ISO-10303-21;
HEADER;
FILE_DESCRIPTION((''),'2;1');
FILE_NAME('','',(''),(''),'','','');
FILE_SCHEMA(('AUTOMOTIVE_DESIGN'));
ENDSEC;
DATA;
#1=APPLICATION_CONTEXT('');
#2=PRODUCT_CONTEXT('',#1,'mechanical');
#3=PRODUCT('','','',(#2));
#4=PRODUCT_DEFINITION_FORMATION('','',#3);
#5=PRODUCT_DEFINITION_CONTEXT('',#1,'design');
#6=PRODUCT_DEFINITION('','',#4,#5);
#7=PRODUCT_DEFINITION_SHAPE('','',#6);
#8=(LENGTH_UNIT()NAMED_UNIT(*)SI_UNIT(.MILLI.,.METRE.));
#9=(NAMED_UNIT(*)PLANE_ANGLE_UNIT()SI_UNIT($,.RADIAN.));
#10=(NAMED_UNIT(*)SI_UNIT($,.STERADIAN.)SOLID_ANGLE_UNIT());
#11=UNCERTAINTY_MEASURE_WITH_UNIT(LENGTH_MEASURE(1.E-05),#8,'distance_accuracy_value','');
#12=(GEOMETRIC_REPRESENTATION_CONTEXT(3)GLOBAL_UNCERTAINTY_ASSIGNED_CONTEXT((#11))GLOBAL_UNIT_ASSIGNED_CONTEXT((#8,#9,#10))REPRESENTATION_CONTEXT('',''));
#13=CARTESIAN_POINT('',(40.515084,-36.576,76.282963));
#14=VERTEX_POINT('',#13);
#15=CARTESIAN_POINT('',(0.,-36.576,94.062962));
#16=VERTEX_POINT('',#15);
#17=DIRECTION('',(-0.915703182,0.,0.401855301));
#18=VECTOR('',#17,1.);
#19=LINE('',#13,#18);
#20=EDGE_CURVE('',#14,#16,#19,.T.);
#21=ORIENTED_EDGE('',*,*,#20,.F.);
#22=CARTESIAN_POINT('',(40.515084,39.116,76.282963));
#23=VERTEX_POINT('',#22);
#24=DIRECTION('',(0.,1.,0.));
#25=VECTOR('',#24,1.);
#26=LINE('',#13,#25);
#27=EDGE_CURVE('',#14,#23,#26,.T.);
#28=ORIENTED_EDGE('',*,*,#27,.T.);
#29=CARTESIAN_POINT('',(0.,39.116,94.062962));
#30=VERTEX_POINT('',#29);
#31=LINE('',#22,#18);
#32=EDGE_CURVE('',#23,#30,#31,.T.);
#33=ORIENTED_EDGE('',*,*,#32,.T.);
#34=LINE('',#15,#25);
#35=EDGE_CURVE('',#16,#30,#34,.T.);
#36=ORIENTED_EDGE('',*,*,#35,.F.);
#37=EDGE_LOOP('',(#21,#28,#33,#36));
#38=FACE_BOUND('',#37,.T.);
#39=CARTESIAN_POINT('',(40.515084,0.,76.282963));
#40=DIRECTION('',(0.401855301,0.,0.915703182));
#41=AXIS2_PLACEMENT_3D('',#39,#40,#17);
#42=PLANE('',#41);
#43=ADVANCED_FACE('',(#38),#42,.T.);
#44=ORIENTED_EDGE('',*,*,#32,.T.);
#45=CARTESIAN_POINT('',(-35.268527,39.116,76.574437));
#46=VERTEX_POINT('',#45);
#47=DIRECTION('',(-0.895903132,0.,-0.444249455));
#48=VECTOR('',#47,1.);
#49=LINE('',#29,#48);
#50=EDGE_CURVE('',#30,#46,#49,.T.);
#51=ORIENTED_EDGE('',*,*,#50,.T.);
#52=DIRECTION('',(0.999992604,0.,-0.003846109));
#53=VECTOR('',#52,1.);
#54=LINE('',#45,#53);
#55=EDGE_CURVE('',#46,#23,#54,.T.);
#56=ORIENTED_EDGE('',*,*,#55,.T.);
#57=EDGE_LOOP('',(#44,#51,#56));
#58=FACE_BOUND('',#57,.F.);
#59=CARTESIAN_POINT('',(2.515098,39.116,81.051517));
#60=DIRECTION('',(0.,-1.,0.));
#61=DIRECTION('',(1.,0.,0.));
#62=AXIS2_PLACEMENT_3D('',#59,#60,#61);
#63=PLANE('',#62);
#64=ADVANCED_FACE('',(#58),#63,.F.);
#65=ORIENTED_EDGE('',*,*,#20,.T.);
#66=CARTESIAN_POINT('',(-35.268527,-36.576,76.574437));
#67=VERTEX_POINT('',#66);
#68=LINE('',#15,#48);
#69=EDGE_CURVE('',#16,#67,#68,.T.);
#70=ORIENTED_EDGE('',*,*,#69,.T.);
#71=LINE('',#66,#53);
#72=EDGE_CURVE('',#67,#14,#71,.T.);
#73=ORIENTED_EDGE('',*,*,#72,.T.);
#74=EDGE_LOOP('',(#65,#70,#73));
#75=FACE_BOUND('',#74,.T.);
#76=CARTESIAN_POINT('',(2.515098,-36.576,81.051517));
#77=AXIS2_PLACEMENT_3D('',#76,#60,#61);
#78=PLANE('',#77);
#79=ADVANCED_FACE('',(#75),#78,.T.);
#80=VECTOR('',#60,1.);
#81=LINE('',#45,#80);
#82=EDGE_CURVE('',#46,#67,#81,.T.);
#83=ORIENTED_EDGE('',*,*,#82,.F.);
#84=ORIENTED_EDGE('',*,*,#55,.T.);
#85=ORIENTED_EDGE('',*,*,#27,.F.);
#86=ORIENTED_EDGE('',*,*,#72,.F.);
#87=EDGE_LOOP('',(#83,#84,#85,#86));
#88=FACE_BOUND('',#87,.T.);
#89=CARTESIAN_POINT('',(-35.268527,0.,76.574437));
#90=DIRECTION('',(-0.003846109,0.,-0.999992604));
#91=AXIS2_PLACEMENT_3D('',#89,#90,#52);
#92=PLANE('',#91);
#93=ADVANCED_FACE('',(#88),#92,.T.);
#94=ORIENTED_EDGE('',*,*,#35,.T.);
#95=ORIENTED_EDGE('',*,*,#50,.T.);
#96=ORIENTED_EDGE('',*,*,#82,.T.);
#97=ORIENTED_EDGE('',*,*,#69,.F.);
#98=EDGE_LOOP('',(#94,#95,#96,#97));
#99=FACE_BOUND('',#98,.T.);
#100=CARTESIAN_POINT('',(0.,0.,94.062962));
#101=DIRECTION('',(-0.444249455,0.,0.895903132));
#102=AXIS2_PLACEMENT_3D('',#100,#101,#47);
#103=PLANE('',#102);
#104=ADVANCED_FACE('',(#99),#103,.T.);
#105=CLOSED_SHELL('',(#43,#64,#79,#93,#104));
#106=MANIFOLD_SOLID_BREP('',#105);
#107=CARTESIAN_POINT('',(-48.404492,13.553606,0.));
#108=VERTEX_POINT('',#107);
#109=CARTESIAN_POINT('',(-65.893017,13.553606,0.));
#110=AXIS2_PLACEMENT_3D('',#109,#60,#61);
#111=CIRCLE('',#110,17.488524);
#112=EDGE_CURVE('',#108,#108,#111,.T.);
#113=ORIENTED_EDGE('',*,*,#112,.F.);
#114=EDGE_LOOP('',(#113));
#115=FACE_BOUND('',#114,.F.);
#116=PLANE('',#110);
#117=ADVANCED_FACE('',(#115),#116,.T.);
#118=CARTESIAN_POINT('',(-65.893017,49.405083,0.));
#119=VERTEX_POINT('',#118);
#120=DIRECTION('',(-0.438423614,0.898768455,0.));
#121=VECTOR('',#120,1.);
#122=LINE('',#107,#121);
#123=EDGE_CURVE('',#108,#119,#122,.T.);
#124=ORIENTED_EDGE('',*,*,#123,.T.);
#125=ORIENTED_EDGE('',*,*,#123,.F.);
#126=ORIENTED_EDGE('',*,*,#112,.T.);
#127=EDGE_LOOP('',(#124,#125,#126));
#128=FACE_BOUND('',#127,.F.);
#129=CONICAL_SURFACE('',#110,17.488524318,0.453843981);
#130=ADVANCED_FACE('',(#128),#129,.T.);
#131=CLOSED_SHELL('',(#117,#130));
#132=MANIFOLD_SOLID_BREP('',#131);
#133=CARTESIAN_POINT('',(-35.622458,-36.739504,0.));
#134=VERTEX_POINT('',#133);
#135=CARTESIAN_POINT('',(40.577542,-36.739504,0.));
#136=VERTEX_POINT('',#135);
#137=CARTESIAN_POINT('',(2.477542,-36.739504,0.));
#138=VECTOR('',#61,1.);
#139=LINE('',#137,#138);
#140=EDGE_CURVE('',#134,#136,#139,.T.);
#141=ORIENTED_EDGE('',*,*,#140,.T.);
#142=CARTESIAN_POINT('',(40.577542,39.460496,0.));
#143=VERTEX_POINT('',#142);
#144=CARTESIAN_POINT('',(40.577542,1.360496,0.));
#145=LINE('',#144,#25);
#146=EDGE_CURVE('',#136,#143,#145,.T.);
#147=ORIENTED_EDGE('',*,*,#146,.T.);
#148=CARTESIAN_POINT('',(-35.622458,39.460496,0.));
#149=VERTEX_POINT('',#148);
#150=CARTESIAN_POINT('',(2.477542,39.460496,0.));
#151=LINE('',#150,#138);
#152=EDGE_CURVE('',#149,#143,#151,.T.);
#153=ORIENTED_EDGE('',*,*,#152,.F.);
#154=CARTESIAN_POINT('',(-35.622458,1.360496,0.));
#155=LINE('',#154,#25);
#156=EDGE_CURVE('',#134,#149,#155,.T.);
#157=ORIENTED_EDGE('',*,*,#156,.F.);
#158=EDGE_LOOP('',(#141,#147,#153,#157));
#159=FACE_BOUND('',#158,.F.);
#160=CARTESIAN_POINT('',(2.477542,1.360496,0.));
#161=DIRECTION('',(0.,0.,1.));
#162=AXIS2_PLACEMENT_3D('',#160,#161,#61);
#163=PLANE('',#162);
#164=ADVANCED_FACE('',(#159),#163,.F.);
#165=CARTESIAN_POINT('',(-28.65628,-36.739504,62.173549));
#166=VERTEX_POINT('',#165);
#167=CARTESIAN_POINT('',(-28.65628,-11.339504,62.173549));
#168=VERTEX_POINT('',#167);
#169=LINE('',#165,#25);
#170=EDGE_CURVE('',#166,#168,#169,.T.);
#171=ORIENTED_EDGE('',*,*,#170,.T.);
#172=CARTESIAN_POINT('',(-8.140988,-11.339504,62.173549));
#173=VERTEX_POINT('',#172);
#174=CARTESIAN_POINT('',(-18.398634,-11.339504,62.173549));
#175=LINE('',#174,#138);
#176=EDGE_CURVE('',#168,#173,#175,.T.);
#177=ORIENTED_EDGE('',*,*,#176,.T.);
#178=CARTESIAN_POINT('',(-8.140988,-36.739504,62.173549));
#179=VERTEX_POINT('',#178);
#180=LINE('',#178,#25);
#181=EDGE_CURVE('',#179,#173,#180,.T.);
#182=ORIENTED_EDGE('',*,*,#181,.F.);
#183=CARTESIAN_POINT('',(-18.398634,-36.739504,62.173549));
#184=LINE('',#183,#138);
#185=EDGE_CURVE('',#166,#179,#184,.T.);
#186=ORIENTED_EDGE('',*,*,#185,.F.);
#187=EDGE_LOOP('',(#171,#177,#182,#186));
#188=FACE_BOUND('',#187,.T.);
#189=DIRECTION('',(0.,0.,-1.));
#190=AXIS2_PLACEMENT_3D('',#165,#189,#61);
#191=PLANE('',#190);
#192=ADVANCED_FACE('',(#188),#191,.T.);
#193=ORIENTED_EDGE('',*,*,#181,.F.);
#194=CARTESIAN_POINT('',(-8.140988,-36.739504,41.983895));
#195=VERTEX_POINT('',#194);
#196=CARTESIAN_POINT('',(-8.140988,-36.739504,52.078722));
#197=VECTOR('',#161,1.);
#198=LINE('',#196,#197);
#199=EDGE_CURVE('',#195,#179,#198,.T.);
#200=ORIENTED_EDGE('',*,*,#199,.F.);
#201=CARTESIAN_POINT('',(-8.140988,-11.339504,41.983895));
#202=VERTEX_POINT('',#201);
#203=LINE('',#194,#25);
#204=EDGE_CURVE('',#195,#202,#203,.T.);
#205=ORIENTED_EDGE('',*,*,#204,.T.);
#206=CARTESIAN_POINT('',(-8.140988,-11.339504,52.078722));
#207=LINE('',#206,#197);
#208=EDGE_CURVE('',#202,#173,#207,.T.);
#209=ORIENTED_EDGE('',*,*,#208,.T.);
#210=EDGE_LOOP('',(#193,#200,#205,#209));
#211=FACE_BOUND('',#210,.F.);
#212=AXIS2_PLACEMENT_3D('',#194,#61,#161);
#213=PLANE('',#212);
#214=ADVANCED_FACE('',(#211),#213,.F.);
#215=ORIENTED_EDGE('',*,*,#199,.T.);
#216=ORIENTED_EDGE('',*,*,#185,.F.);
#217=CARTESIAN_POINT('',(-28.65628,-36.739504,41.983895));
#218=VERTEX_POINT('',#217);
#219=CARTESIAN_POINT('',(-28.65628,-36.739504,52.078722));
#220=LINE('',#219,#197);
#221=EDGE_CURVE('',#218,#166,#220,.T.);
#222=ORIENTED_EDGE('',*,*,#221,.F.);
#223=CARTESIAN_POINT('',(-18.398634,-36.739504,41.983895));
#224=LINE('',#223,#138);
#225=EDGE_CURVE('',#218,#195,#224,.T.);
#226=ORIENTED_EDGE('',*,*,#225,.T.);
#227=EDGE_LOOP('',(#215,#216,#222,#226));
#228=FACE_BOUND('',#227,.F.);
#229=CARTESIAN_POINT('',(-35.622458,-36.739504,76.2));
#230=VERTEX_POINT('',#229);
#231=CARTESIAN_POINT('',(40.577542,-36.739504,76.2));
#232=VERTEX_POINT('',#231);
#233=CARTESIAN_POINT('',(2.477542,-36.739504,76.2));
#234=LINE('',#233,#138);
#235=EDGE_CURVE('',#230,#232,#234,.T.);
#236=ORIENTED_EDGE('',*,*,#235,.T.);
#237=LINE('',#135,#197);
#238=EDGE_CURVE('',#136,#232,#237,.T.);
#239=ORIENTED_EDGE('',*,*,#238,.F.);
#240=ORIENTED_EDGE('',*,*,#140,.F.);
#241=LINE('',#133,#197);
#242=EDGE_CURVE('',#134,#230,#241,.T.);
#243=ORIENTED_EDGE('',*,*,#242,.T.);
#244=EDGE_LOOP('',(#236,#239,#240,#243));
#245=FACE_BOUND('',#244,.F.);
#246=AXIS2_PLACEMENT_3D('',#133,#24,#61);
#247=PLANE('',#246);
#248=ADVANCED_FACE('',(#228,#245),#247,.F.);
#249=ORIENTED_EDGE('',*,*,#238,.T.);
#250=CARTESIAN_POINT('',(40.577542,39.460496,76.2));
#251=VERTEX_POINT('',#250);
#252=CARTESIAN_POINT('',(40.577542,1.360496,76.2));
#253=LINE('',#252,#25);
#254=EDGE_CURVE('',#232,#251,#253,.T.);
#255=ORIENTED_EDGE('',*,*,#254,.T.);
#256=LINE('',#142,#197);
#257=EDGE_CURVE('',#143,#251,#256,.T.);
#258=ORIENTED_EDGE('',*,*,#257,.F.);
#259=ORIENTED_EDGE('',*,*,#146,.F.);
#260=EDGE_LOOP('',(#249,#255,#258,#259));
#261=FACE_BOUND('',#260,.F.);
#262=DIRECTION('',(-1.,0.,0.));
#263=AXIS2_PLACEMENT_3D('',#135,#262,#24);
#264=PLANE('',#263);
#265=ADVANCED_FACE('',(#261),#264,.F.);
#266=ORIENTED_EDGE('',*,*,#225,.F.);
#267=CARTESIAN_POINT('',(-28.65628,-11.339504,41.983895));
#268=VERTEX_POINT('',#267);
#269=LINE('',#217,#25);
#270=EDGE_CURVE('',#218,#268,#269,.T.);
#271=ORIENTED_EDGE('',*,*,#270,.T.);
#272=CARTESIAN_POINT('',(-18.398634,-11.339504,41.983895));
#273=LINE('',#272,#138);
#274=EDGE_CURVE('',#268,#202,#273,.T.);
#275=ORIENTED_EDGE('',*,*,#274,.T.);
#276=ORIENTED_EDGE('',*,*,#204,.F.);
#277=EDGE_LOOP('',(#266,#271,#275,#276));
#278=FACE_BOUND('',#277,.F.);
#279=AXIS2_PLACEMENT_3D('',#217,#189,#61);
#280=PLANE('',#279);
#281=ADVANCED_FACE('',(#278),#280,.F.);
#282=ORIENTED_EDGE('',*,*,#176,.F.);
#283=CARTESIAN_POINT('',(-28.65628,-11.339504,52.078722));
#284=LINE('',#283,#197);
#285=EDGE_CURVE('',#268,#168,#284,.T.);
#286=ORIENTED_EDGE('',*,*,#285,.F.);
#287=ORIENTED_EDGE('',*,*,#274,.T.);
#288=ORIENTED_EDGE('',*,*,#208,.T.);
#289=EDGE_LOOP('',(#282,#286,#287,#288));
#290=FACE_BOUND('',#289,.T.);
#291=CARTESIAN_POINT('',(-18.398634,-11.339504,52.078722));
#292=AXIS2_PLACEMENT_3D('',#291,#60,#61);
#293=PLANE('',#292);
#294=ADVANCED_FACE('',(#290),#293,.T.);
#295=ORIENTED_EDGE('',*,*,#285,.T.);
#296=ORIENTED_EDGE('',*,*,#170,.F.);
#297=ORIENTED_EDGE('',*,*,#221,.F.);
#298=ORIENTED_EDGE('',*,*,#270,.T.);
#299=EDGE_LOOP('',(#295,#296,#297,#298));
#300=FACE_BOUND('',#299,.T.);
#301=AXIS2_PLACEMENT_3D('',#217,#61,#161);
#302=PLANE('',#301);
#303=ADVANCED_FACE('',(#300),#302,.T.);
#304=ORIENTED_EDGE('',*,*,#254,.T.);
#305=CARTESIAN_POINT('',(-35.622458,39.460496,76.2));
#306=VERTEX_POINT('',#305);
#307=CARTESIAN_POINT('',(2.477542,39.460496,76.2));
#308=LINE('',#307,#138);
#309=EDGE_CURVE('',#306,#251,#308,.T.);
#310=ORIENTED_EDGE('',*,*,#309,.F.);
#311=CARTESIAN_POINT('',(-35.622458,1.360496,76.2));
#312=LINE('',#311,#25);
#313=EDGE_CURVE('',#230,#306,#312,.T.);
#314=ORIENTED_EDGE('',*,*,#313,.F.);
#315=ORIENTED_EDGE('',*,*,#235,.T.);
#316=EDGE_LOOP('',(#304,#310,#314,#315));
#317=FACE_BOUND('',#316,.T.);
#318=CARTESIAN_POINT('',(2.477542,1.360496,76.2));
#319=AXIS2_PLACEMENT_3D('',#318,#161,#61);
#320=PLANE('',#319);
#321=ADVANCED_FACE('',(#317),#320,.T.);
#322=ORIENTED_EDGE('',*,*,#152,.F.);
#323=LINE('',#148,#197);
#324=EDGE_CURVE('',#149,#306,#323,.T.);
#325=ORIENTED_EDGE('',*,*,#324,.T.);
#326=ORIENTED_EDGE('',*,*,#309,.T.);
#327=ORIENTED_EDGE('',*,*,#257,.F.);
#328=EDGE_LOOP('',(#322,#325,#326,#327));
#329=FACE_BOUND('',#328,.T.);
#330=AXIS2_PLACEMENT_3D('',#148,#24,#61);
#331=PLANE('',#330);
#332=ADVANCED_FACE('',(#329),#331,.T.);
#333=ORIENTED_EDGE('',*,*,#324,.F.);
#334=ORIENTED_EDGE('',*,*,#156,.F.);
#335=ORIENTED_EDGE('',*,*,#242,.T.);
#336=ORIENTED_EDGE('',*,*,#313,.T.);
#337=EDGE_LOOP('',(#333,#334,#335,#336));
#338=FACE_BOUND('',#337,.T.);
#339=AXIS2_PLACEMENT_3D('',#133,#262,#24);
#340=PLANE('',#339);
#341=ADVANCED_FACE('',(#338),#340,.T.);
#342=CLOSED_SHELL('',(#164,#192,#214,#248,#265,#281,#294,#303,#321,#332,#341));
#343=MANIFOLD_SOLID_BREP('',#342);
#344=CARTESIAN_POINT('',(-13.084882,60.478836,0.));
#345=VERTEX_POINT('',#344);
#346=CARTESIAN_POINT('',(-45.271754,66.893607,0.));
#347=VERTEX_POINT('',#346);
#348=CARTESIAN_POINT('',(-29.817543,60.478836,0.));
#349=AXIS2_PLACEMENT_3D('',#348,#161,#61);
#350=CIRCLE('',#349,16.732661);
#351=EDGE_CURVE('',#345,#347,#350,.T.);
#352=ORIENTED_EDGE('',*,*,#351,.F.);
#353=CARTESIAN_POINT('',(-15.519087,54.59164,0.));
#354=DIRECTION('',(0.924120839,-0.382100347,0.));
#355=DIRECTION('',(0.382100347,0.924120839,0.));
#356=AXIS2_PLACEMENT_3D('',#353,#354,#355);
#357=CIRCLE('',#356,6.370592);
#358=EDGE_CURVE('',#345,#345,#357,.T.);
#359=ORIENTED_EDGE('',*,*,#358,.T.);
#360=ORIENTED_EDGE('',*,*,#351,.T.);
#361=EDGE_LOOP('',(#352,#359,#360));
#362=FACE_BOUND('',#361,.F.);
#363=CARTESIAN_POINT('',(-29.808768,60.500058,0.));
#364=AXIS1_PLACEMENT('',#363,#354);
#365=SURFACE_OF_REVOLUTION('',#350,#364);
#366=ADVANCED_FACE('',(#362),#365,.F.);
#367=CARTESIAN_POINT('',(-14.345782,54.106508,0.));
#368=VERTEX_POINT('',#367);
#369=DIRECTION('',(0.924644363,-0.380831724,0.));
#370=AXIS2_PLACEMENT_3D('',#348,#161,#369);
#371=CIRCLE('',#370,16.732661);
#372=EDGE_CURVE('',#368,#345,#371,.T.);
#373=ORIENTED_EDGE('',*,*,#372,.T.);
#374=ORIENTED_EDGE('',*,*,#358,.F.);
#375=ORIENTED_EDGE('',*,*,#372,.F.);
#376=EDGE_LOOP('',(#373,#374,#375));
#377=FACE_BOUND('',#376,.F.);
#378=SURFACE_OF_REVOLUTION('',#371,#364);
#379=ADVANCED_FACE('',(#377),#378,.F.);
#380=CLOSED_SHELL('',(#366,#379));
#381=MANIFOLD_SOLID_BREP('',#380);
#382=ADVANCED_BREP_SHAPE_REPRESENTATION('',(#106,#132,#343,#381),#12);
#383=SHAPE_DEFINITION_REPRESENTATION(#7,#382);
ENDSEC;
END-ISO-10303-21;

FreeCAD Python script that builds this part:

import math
import FreeCAD as App
import Part
import Sketcher

V = App.Vector
Q = App.Units.Quantity

doc = App.newDocument("Part")
body = doc.addObject("PartDesign::Body", "Body")

# Sketch on XY plane
sketch1 = doc.addObject("Sketcher::SketchObject", "Sketch")
body.addObject(sketch1)
sketch1.AttachmentSupport = (doc.XY_Plane, [""])
sketch1.MapMode = "FlatFace"
sketch1.addGeometry([
    Part.LineSegment(V(-36, 39, 0), V(-36, -37, 0)),
    Part.LineSegment(V(-36, -37, 0), V(41, -37, 0)),
    Part.LineSegment(V(41, -37, 0), V(41, 39, 0)),
    Part.LineSegment(V(41, 39, 0), V(-36, 39, 0)),
], False)
sketch1.addConstraint([
    Sketcher.Constraint("Coincident", 0, 2, 1, 1),
    Sketcher.Constraint("Coincident", 1, 2, 2, 1),
    Sketcher.Constraint("Coincident", 2, 2, 3, 1),
    Sketcher.Constraint("Coincident", 3, 2, 0, 1),
    Sketcher.Constraint("Vertical", 0),
    Sketcher.Constraint("Horizontal", 1),
    Sketcher.Constraint("Vertical", 2),
    Sketcher.Constraint("Horizontal", 3),
    Sketcher.Constraint("Equal", 3, 0),
    Sketcher.Constraint("DistanceX", 1, 1, 1, 2, Q("3 in")),
    Sketcher.Constraint("DistanceX", 0, 2, -1, 1, 35.622458),
    Sketcher.Constraint("DistanceY", 0, 2, -1, 1, 36.739504),
])
pad1 = doc.addObject("PartDesign::Pad", "Pad")
body.addObject(pad1)
pad1.Profile = sketch1
pad1.Length = Q("3 in")

# Sketch on XZ plane
sketch2 = doc.addObject("Sketcher::SketchObject", "Sketch001")
body.addObject(sketch2)
sketch2.AttachmentSupport = (doc.XZ_Plane, [""])
sketch2.MapMode = "FlatFace"
sketch2.AttachmentOffset = App.Placement(V(0, 0, 36.739504), App.Rotation())
sketch2.addGeometry([
    Part.LineSegment(V(-29, 62, 0), V(-29, 42, 0)),
    Part.LineSegment(V(-29, 42, 0), V(-8, 42, 0)),
    Part.LineSegment(V(-8, 42, 0), V(-8, 62, 0)),
    Part.LineSegment(V(-8, 62, 0), V(-29, 62, 0)),
], False)
sketch2.addConstraint([
    Sketcher.Constraint("Coincident", 0, 2, 1, 1),
    Sketcher.Constraint("Coincident", 1, 2, 2, 1),
    Sketcher.Constraint("Coincident", 2, 2, 3, 1),
    Sketcher.Constraint("Coincident", 3, 2, 0, 1),
    Sketcher.Constraint("Vertical", 0),
    Sketcher.Constraint("Horizontal", 1),
    Sketcher.Constraint("Vertical", 2),
    Sketcher.Constraint("Horizontal", 3),
    Sketcher.Constraint("DistanceX", 0, 2, -1, 1, Q("1.1282 in")),
    Sketcher.Constraint("DistanceX", 1, 1, 1, 2, 20.515292),
    Sketcher.Constraint("DistanceY", 0, 2, 0, 1, 20.189654),
    Sketcher.Constraint("DistanceY", -1, 1, 2, 2, 62.173549),
])
pocket1 = doc.addObject("PartDesign::Pocket", "Pocket")
body.addObject(pocket1)
pocket1.Profile = sketch2
pocket1.Length = Q("1 in")
body2 = doc.addObject("PartDesign::Body", "Body001")

# Sketch on XZ plane
sketch3 = doc.addObject("Sketcher::SketchObject", "Sketch002")
body2.addObject(sketch3)
sketch3.AttachmentSupport = (doc.getObject("XZ_Plane001"), [""])
sketch3.MapMode = "FlatFace"
sketch3.addGeometry([
    Part.LineSegment(V(0, 94, 0), V(-35, 77, 0)),
    Part.LineSegment(V(-35, 77, 0), V(41, 76, 0)),
    Part.LineSegment(V(41, 76, 0), V(0, 94, 0)),
], False)
sketch3.addConstraint([
    Sketcher.Constraint("Coincident", 0, 2, 1, 1),
    Sketcher.Constraint("Coincident", 1, 2, 2, 1),
    Sketcher.Constraint("Coincident", 2, 2, 0, 1),
    Sketcher.Constraint("PointOnObject", 2, 2, -2),
    Sketcher.Constraint("DistanceY", 1, 2, 2, 2, Q("0.6999999 in")),
    Sketcher.Constraint("Distance", 0, 39.366451),
    Sketcher.Constraint("Distance", 1, 75.784171),
    Sketcher.Constraint("DistanceY", -1, 1, 2, 2, 94.062962),
    Sketcher.Constraint("Distance", 2, 44.244778),
])
pad2 = doc.addObject("PartDesign::Pad", "Pad001")
body2.addObject(pad2)
pad2.Profile = sketch3
pad2.Type = "TwoLengths"
pad2.Length = Q("1.44 in")
pad2.Length2 = Q("1.54 in")
body3 = doc.addObject("PartDesign::Body", "Body002")

# Sketch on XY plane
sketch4 = doc.addObject("Sketcher::SketchObject", "Sketch003")
body3.addObject(sketch4)
sketch4.AttachmentSupport = (doc.getObject("XY_Plane002"), [""])
sketch4.MapMode = "FlatFace"
sketch4.addGeometry([
    Part.LineSegment(V(-48, 14, 0), V(-66, 49, 0)),
    Part.LineSegment(V(-66, 49, 0), V(-66, 14, 0)),
    Part.LineSegment(V(-66, 14, 0), V(-48, 14, 0)),
], False)
sketch4.addGeometry(Part.LineSegment(V(-66, 49, 0), V(-66, 14, 0)), True)  # axis
sketch4.addConstraint([
    Sketcher.Constraint("Coincident", 0, 2, 1, 1),
    Sketcher.Constraint("Coincident", 1, 2, 2, 1),
    Sketcher.Constraint("Coincident", 2, 2, 0, 1),
    Sketcher.Constraint("Vertical", 1),
    Sketcher.Constraint("Horizontal", 2),
    Sketcher.Constraint("Vertical", 3),
    Sketcher.Constraint("Coincident", 3, 1, 0, 2),
    Sketcher.Constraint("Horizontal", 2, 2, 3, 2),
    Sketcher.Constraint("Distance", 0, 39.889558),
    Sketcher.Constraint("DistanceX", 2, 1, 2, 2, 17.488524),
    Sketcher.Constraint("DistanceX", 0, 2, -1, 1, 65.893017),
    Sketcher.Constraint("DistanceY", -1, 1, 0, 2, 49.405083),
])
revolution = doc.addObject("PartDesign::Revolution", "Revolution")
body3.addObject(revolution)
revolution.Profile = sketch4
revolution.ReferenceAxis = (sketch4, ["Axis0"])
revolution.Angle = 360
body4 = doc.addObject("PartDesign::Body", "Body003")

# Sketch on XY plane
sketch5 = doc.addObject("Sketcher::SketchObject", "Sketch004")
body4.addObject(sketch5)
sketch5.AttachmentSupport = (doc.getObject("XY_Plane003"), [""])
sketch5.MapMode = "FlatFace"
sketch5.addGeometry([
    Part.ArcOfCircle(Part.Circle(V(-30, 60, 0), V(0, 0, 1), 17), math.radians(-22), math.radians(0)),
    Part.ArcOfCircle(Part.Circle(V(-30, 60, 0), V(0, 0, 1), 17), math.radians(0), math.radians(157)),
    Part.LineSegment(V(-45, 67, 0), V(-14, 54, 0)),
], False)
sketch5.addGeometry(Part.LineSegment(V(-45, 67, 0), V(-14, 54, 0)), True)  # axis
sketch5.addConstraint([
    Sketcher.Constraint("Tangent", 0, 2, 1, 1),
    Sketcher.Constraint("Coincident", 1, 2, 2, 1),
    Sketcher.Constraint("Coincident", 2, 2, 0, 1),
    Sketcher.Constraint("Coincident", 3, 1, 1, 2),
    Sketcher.Constraint("Coincident", 3, 2, 2, 2),
    Sketcher.Constraint("Equal", 0, 1),
    Sketcher.Constraint("Horizontal", 1, 3, 0, 2),
    Sketcher.Constraint("Radius", 0, 16.732661),
    Sketcher.Constraint("DistanceX", 2, 2, 0, 2, 1.2609),
    Sketcher.Constraint("DistanceY", 2, 2, 1, 2, 12.787099),
    Sketcher.Constraint("DistanceX", 0, 2, -1, 1, 13.084882),
    Sketcher.Constraint("DistanceY", -1, 1, 2, 2, 54.106508),
])
revolution2 = doc.addObject("PartDesign::Revolution", "Revolution001")
body4.addObject(revolution2)
revolution2.Profile = sketch5
revolution2.ReferenceAxis = (sketch5, ["Axis0"])
revolution2.Angle = 360

doc.recompute()
